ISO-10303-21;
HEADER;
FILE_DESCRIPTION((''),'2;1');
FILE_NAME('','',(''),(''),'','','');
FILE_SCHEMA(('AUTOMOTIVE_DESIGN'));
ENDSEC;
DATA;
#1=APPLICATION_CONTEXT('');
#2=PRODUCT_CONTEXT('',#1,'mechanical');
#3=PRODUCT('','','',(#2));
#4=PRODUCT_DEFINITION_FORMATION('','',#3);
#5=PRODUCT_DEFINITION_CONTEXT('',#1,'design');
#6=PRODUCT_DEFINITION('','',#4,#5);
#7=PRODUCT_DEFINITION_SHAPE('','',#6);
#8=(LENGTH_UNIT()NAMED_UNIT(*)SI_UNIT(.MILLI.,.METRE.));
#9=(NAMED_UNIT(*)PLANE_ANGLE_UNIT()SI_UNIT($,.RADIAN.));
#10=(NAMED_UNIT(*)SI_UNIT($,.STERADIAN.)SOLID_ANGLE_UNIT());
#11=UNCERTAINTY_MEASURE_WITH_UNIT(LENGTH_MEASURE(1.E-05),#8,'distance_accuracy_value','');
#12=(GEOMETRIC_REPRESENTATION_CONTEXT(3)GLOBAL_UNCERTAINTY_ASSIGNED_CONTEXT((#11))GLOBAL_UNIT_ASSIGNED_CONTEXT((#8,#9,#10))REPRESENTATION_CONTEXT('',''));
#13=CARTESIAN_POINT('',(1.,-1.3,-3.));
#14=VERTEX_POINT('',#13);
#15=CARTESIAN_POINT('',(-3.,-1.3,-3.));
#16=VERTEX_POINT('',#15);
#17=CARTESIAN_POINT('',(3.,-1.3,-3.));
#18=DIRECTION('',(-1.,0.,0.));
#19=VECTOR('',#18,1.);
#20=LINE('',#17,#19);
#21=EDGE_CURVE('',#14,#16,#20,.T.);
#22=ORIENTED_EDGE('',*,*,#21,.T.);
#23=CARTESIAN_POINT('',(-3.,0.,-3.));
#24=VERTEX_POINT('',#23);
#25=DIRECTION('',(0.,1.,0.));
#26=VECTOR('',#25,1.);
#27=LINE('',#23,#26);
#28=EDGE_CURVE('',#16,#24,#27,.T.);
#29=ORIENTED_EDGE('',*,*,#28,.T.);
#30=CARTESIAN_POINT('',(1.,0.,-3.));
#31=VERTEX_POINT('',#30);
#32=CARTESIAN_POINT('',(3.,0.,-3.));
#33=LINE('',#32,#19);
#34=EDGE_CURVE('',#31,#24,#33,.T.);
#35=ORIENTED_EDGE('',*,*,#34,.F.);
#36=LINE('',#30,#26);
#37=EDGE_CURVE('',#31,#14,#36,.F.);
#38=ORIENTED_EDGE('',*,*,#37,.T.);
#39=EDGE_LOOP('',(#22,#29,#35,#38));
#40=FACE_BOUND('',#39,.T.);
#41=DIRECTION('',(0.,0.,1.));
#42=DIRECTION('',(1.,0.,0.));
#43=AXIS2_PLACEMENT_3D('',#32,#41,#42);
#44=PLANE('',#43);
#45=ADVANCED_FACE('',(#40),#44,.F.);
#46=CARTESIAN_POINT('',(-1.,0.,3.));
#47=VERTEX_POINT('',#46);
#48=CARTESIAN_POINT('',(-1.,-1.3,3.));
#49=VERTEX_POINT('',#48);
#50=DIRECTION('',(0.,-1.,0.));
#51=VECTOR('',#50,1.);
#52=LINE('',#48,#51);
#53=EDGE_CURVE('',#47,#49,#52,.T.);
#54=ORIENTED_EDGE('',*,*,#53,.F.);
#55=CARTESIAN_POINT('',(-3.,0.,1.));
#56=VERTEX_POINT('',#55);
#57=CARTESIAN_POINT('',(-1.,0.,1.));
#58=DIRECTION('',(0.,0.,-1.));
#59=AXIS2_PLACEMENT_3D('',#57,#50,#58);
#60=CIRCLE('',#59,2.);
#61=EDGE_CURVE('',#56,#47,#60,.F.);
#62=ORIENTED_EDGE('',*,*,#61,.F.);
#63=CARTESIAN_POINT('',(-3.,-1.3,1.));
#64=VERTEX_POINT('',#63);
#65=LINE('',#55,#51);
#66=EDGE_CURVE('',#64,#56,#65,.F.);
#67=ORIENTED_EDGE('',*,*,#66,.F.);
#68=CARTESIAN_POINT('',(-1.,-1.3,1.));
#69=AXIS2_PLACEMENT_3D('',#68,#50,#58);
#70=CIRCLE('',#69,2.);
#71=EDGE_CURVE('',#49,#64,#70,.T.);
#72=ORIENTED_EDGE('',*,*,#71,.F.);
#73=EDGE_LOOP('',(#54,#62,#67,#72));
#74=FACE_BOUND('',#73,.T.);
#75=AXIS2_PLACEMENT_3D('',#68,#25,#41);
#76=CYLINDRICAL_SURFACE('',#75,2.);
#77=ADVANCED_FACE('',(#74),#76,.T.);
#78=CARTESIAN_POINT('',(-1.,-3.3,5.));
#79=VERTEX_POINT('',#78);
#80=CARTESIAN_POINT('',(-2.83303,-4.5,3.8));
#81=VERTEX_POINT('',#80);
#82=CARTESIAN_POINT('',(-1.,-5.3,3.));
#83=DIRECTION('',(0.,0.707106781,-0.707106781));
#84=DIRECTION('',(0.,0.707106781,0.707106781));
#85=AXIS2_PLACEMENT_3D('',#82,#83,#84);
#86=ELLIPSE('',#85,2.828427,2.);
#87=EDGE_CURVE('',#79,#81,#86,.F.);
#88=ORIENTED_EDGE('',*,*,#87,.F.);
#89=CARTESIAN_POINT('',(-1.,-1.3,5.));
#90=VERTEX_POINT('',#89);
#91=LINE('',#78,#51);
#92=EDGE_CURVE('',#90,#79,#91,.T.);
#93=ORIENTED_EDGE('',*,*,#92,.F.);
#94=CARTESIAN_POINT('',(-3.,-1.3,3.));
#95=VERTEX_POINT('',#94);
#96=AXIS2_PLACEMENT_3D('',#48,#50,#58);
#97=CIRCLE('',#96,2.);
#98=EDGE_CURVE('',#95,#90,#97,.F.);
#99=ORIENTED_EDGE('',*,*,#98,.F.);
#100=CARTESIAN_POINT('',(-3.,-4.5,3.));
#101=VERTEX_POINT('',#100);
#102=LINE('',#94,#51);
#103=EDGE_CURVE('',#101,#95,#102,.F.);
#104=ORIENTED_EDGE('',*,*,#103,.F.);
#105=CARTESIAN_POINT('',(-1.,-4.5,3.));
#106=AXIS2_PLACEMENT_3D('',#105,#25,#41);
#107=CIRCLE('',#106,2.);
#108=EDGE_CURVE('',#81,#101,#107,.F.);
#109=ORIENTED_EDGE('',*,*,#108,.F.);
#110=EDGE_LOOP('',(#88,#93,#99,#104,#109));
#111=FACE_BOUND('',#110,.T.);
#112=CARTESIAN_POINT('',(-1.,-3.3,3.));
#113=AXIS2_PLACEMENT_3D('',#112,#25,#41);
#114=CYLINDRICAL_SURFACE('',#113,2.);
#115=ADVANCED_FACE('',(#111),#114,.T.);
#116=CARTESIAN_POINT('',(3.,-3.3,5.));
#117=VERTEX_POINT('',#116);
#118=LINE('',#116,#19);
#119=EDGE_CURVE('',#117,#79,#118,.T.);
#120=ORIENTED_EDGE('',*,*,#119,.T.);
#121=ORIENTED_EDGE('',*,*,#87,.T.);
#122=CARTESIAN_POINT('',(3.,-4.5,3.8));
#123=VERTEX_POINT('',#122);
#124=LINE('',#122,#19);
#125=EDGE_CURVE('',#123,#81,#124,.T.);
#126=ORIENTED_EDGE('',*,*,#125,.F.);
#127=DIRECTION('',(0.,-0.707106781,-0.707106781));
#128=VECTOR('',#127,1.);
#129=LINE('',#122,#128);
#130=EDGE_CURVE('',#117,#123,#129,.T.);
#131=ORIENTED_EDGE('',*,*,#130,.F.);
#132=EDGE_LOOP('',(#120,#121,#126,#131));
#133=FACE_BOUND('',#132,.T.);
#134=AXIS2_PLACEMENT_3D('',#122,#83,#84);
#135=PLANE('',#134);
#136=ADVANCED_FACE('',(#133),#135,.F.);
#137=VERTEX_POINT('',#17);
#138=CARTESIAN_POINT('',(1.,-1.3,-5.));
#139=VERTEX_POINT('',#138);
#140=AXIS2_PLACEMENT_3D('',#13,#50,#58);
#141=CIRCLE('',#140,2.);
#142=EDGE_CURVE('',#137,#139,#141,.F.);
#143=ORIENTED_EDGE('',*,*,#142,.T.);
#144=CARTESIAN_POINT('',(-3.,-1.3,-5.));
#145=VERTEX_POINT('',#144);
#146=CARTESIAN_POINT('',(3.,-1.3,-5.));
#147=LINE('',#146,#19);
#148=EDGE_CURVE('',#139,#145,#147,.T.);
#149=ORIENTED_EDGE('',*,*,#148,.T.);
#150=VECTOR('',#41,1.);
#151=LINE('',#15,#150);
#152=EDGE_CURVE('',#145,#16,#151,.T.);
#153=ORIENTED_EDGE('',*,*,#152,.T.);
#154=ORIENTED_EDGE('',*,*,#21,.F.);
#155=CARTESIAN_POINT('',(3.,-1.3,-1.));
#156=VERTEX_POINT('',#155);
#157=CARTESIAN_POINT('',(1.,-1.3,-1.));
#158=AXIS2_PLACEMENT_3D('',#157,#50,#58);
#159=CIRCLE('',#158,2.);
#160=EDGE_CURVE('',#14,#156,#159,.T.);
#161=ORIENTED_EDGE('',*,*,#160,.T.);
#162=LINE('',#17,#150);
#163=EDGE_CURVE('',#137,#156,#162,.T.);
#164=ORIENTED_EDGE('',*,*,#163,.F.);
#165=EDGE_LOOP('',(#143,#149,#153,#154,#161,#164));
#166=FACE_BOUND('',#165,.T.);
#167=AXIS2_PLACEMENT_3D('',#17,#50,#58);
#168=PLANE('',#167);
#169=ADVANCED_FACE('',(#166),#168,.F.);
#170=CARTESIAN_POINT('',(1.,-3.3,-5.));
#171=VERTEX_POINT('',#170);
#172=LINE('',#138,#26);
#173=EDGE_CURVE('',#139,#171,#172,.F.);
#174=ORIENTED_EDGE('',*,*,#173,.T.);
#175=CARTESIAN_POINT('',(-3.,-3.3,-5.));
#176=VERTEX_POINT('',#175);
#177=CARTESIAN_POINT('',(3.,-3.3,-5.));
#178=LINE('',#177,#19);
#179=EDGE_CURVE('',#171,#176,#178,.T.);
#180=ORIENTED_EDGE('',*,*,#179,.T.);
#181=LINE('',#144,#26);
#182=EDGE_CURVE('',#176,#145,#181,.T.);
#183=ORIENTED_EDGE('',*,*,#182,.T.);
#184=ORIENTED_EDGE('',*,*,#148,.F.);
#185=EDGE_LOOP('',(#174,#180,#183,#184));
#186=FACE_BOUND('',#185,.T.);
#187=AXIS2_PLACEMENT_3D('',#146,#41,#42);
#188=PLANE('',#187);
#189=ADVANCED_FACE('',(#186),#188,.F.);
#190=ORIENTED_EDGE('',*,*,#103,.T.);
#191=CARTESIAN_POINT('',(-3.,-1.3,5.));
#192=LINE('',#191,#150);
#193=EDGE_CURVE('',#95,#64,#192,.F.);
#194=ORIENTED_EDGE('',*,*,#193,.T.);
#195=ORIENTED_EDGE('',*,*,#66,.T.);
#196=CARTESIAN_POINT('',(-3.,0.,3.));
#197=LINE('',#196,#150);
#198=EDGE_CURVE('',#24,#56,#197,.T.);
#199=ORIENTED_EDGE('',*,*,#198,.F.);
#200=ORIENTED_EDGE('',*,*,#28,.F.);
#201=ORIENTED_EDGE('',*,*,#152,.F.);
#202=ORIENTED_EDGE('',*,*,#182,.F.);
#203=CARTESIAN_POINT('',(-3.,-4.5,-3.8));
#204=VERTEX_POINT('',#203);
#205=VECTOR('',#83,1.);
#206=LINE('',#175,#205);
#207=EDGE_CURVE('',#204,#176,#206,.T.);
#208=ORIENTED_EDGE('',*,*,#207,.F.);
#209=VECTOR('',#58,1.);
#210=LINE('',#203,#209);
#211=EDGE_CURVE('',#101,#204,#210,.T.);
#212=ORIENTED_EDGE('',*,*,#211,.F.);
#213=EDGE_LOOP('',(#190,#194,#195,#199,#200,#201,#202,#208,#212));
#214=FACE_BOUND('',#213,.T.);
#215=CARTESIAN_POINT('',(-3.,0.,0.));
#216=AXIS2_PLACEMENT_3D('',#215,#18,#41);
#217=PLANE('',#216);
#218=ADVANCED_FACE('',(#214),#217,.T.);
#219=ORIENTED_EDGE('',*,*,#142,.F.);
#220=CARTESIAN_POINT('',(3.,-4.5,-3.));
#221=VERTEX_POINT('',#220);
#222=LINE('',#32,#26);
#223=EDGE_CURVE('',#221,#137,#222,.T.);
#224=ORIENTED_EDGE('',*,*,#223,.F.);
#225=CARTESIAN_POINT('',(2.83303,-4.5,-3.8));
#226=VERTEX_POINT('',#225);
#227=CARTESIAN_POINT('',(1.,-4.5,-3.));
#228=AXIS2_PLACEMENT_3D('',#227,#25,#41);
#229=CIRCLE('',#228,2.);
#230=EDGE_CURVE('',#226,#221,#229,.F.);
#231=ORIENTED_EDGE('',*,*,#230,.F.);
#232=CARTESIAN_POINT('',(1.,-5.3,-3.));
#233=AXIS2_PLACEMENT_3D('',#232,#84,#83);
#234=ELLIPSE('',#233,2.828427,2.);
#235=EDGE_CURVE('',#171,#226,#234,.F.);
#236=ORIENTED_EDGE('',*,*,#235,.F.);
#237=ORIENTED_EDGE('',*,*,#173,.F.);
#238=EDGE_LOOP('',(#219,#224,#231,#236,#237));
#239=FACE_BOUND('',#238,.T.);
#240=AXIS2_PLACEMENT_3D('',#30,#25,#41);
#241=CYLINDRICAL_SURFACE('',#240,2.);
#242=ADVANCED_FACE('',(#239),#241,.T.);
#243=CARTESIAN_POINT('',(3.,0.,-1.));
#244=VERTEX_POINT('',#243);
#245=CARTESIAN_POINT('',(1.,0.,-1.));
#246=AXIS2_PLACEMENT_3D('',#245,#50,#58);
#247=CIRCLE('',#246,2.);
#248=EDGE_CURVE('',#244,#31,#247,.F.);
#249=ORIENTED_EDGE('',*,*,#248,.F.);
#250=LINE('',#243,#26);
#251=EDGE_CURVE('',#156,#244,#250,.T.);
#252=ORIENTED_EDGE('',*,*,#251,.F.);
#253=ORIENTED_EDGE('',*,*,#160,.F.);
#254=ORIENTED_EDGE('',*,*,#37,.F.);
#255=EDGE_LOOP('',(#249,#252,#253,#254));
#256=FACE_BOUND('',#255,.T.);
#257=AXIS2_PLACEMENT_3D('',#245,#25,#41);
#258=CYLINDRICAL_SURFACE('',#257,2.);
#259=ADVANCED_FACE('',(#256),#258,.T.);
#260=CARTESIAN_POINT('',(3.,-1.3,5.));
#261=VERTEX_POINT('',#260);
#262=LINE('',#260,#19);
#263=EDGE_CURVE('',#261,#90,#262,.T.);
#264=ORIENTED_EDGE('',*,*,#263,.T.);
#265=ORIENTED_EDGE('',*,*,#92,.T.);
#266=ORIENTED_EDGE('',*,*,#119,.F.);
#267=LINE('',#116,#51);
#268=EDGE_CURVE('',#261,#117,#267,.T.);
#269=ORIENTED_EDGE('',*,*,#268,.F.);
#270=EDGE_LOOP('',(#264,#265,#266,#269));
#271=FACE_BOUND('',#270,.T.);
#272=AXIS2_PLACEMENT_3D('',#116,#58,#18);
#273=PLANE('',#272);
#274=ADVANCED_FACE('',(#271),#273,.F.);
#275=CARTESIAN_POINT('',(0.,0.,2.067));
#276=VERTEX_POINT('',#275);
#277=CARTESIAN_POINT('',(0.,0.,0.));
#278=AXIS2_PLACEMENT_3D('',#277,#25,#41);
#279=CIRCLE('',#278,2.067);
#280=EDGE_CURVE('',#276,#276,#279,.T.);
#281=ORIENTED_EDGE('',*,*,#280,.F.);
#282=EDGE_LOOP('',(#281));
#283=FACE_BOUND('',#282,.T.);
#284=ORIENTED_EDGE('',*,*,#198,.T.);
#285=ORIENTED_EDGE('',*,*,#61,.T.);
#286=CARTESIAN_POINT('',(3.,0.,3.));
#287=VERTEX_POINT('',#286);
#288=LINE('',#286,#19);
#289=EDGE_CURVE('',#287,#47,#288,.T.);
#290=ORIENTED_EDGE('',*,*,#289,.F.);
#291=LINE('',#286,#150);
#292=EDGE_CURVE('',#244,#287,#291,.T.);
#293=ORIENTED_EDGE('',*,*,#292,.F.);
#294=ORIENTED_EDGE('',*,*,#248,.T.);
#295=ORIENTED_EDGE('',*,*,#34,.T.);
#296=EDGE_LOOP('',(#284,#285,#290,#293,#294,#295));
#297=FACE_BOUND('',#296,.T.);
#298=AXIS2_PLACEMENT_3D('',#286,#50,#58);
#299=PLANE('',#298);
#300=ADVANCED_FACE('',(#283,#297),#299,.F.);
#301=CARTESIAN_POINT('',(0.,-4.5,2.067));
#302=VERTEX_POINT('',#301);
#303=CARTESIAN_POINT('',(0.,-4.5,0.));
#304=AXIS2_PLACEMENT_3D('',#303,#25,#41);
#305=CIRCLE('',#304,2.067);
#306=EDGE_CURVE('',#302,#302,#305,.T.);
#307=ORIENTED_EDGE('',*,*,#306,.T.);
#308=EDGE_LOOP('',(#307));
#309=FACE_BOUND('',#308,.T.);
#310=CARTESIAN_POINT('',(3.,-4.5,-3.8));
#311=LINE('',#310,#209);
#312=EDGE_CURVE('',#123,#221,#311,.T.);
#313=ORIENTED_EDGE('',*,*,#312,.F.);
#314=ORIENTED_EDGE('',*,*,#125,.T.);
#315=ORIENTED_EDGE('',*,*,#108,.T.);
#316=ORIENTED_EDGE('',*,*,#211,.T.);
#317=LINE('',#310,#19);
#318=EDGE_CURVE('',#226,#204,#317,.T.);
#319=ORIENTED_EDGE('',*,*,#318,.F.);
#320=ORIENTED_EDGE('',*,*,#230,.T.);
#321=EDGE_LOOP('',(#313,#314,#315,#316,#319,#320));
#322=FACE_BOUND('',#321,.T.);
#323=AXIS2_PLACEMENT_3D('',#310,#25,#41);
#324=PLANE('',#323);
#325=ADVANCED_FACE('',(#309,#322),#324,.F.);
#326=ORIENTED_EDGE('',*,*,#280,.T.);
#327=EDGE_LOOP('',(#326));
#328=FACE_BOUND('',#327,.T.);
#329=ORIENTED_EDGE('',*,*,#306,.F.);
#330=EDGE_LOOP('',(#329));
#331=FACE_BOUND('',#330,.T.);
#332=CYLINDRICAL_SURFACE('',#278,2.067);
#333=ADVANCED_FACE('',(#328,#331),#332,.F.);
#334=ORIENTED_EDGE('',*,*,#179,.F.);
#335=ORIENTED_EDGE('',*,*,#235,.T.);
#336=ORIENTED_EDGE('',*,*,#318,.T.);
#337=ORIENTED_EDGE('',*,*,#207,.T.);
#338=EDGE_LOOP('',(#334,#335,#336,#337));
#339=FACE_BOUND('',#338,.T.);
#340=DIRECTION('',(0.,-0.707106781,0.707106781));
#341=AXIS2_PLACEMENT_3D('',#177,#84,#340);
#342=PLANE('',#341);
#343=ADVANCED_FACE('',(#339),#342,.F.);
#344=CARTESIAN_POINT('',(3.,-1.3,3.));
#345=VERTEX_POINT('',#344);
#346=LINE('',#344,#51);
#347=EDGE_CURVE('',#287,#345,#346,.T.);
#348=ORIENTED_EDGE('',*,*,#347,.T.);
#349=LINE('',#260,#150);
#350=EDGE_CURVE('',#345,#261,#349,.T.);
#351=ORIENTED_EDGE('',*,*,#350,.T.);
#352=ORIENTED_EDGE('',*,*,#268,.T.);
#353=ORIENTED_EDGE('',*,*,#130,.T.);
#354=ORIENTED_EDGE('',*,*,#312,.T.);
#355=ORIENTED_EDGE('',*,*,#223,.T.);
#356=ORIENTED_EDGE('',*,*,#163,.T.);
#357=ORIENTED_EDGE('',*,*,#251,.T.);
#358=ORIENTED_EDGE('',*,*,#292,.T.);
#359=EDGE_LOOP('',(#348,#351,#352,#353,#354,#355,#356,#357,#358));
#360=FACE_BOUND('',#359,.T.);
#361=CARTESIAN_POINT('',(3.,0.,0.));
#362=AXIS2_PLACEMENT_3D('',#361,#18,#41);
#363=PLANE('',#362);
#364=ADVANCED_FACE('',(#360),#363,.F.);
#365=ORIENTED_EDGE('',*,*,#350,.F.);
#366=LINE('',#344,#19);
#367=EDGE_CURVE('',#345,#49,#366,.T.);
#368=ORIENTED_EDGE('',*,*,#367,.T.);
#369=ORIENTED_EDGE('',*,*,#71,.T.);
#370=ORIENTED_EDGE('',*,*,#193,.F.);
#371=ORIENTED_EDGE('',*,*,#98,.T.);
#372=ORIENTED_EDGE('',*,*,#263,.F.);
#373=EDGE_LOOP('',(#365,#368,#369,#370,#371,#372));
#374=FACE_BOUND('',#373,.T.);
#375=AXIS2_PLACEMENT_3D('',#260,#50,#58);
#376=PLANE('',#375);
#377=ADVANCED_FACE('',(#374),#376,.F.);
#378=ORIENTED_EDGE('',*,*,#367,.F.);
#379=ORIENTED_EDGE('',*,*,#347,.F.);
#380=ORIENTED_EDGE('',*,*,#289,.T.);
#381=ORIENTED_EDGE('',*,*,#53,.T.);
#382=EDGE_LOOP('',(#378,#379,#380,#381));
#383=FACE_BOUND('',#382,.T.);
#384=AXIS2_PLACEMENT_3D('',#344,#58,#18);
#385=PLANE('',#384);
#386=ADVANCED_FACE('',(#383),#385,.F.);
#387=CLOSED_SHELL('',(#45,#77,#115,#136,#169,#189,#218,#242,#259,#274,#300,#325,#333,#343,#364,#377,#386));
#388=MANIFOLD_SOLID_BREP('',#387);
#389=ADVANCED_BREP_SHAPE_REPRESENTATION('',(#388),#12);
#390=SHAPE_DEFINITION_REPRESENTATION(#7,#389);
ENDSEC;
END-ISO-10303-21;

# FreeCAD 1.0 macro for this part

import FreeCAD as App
import Part
import Sketcher

V = App.Vector


def edges_at(feature, points):
    """Names of the edges that pass closest to the given points."""
    edges = feature.Shape.Edges
    near = lambda p: min(range(len(edges)), key=lambda i: edges[i].distToShape(Part.Vertex(*p))[0])
    return sorted({f"Edge{near(p) + 1}" for p in points})


def add_polygon(sketch, points):
    """Adds a closed chain of lines whose ends are joined by coincident constraints."""
    first, n = sketch.GeometryCount, len(points)
    for a, b in zip(points, points[1:] + points[:1]):
        sketch.addGeometry(Part.LineSegment(App.Vector(*a, 0), App.Vector(*b, 0)), False)
    for i in range(n):
        sketch.addConstraint(Sketcher.Constraint("Coincident", first + i, 2, first + (i + 1) % n, 1))

doc = App.newDocument("Part")
params = doc.addObject("Spreadsheet::Sheet", "Params")
for row, (alias, value) in enumerate([
    ("sketch1_width", "2 mm"),
    ("sketch1_height", "6 mm"),
    ("sketch1_width2", "1.3 mm"),
    ("sketch1_height2", "7.6 mm"),
    ("pad1_length", "6 mm"),
    ("fillet_radius", "2 mm"),
    ("hole_diameter", "4.134 mm"),
], start=1):
    params.set(f"A{row}", alias)
    params.set(f"B{row}", "=" + value)
    params.setAlias(f"B{row}", alias)

body = doc.addObject("PartDesign::Body", "Body")

# Sketch on YZ plane
sketch1 = body.newObject("Sketcher::SketchObject", "Sketch")
sketch1.AttachmentSupport = (doc.getObject("YZ_Plane"), [""])
sketch1.MapMode = "FlatFace"
add_polygon(sketch1, [(0, -3), (0, 3), (-1.3, 3), (-1.3, 5), (-3.3, 5), (-4.5, 3.8), (-4.5, -3.8), (-3.3, -5), (-1.3, -5), (-1.3, -3)])  # lines 0-9
sketch1.addConstraint([
    Sketcher.Constraint("Vertical", 0),
    Sketcher.Constraint("Horizontal", 1),
    Sketcher.Constraint("Vertical", 2),
    Sketcher.Constraint("Horizontal", 3),
    Sketcher.Constraint("Vertical", 5),
    Sketcher.Constraint("Horizontal", 7),
    Sketcher.Constraint("Vertical", 8),
    Sketcher.Constraint("Horizontal", 9),
    Sketcher.Constraint("Symmetric", 0, 2, 9, 2, -1, 1),
    Sketcher.Constraint("Symmetric", 3, 2, 6, 2, -1),
    Sketcher.Constraint("Perpendicular", 4, 6),
    Sketcher.Constraint("Vertical", 2, 2, 7, 2),
    Sketcher.Constraint("Equal", 7, 2),
    Sketcher.Constraint("Equal", 4, 6),
    Sketcher.Constraint("DistanceX", 3, 2, 3, 1, 2.0),
    Sketcher.Constraint("DistanceY", 0, 1, 0, 2, 6.0),
    Sketcher.Constraint("DistanceX", 1, 2, 1, 1, 1.3),
    Sketcher.Constraint("DistanceY", 5, 2, 5, 1, 7.6),
])
sketch1.setExpression("Constraints[24]", "Params.sketch1_width")
sketch1.setExpression("Constraints[25]", "Params.sketch1_height")
sketch1.setExpression("Constraints[26]", "Params.sketch1_width2")
sketch1.setExpression("Constraints[27]", "Params.sketch1_height2")
pad1 = body.newObject("PartDesign::Pad", "Pad")
pad1.Profile = sketch1
pad1.setExpression("Length", "Params.pad1_length")
pad1.Midplane = True
doc.recompute()

fillet = body.newObject("PartDesign::Fillet", "Fillet")
fillet.Base = (pad1, edges_at(pad1, [
    (3, -2.3, -5),
    (-3, -2.3, 5),
    (3, -0.65, -3),
    (-3, -0.65, 3),
]))
fillet.setExpression("Radius", "Params.fillet_radius")

# Sketch on XZ plane
sketch2 = body.newObject("Sketcher::SketchObject", "Sketch001")
sketch2.AttachmentSupport = (doc.getObject("XZ_Plane"), [""])
sketch2.MapMode = "FlatFace"
sketch2.addGeometry(Part.Circle(V(0, 0, 0), V(0, 0, 1), 2.1), False)
sketch2.addConstraint([
    Sketcher.Constraint("Coincident", 0, 3, -1, 1),
    Sketcher.Constraint("Diameter", 0, 4.134),
])
doc.recompute()
hole = body.newObject("PartDesign::Hole", "Hole")
hole.Profile = sketch2
hole.ThreadType = "None"
hole.setExpression("Diameter", "Params.hole_diameter")
hole.DepthType = "ThroughAll"
hole.Reversed = True

doc.recompute()
